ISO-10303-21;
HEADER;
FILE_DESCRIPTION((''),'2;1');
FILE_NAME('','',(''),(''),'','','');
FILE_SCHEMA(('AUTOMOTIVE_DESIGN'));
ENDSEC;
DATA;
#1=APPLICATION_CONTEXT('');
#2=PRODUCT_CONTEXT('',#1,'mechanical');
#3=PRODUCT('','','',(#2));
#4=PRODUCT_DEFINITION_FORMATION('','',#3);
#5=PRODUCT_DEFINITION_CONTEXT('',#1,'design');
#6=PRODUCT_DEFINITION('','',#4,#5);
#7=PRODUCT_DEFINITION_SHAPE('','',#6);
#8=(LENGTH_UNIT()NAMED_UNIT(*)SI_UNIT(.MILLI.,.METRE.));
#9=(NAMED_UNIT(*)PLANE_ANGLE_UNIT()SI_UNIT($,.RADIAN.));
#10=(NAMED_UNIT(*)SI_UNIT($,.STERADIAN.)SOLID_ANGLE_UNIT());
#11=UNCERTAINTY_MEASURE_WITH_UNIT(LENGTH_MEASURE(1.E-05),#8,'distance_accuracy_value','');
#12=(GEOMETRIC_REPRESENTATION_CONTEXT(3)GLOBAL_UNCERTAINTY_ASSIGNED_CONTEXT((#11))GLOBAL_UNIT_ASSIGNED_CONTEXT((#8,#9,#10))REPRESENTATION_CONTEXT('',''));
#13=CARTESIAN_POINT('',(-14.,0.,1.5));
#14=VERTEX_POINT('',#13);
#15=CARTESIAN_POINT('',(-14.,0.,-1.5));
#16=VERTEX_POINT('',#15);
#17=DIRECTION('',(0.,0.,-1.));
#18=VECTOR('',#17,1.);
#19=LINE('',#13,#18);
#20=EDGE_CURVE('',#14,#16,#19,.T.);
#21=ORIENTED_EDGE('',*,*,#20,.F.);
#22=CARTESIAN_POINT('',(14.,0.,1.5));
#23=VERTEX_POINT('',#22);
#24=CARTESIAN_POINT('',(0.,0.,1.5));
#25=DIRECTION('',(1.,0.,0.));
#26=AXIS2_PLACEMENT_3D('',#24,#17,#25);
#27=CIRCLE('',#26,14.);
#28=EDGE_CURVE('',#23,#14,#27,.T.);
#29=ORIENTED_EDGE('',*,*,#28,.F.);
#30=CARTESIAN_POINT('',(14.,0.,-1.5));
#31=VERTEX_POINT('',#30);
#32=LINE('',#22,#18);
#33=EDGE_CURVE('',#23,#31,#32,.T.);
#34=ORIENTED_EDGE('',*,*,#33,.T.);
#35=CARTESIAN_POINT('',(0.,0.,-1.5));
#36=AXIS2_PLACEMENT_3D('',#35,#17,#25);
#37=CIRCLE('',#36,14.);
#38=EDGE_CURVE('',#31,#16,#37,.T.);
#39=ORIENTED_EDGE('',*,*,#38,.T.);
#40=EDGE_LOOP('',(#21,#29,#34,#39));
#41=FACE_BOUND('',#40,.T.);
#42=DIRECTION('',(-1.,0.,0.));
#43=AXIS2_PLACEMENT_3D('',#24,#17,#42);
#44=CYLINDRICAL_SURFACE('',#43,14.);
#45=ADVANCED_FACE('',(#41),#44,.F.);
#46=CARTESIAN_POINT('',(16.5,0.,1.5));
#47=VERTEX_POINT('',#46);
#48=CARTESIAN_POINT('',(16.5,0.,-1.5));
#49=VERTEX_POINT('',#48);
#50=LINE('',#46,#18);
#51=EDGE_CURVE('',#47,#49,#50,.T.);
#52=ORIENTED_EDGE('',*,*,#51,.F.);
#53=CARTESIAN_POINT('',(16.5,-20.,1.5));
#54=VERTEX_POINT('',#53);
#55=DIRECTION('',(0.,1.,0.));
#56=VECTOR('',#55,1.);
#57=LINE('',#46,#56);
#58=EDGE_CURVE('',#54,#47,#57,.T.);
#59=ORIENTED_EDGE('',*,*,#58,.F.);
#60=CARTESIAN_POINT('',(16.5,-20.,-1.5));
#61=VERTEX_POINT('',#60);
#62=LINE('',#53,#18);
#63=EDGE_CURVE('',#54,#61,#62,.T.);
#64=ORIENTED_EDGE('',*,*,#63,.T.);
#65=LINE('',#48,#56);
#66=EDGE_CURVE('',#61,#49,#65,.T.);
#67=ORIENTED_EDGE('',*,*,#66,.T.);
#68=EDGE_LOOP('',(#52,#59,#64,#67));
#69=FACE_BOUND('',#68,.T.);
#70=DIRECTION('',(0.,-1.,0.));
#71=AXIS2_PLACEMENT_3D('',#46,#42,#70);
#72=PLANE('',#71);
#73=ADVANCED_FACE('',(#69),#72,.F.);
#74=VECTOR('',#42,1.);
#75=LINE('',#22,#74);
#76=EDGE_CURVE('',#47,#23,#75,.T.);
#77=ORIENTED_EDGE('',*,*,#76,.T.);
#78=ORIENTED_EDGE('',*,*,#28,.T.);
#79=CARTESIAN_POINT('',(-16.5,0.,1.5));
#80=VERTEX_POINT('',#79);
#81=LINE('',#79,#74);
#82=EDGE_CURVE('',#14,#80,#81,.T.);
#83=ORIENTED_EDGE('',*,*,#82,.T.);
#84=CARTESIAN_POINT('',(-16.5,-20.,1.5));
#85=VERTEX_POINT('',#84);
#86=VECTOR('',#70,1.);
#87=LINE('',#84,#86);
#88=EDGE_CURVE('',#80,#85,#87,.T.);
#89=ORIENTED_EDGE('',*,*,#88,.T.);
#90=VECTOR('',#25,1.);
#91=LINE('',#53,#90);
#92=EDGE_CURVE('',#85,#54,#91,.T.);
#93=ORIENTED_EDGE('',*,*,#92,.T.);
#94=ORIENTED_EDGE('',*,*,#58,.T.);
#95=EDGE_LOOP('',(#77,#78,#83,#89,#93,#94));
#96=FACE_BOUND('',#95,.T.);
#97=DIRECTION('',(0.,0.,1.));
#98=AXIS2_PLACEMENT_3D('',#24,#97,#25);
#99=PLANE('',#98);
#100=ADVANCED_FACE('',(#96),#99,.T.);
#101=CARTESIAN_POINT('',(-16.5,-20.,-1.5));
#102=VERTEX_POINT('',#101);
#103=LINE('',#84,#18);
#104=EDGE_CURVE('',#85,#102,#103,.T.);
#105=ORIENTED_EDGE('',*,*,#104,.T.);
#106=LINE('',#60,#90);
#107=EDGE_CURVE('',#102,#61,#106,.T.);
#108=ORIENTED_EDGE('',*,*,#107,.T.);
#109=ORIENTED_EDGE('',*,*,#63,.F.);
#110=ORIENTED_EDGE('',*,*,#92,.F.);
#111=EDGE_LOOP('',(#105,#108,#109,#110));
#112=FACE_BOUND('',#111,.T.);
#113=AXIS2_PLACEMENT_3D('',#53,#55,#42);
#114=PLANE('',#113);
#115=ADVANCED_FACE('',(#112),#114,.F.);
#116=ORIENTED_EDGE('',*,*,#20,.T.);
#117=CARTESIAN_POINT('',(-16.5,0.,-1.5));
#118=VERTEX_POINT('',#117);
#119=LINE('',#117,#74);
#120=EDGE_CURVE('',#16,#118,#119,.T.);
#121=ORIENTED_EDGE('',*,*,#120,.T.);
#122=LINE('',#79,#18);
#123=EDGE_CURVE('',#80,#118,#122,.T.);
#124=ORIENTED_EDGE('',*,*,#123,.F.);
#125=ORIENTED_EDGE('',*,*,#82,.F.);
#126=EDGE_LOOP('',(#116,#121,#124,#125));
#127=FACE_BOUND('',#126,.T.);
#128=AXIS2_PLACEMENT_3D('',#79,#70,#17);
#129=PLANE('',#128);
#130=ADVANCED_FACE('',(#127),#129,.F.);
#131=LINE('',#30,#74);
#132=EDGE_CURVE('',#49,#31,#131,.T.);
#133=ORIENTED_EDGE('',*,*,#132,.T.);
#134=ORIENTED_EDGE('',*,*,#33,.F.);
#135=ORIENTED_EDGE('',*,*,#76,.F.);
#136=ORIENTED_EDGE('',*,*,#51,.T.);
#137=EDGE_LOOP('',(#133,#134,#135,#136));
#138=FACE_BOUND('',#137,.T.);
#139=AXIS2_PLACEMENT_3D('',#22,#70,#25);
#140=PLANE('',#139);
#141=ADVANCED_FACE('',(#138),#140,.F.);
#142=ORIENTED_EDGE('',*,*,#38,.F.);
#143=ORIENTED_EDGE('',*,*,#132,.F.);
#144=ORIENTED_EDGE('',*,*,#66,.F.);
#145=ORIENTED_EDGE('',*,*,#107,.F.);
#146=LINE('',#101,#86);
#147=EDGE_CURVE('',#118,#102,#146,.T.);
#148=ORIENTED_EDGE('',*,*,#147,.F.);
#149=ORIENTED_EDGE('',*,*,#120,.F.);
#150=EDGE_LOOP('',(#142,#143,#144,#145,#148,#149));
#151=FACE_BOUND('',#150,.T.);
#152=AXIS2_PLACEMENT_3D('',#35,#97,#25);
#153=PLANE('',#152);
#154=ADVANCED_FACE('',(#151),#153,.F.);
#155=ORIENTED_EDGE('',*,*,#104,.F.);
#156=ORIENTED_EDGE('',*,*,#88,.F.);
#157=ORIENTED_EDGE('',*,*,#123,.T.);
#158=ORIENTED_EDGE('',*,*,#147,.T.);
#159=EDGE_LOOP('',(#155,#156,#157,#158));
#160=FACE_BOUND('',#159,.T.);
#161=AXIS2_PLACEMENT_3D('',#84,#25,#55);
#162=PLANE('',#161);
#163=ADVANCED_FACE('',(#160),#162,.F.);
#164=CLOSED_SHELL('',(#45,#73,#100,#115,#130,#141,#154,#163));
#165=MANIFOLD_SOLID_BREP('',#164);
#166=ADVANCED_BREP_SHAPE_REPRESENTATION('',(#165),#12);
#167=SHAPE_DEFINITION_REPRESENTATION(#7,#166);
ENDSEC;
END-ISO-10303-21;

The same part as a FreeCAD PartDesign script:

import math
import FreeCAD as App
import Part
import Sketcher
Q = App.Units.Quantity

doc = App.newDocument("Part")
body = doc.addObject("PartDesign::Body", "Body")

# Sketch on XY plane
sketch1 = body.newObject("Sketcher::SketchObject", "Sketch")
sketch1.AttachmentSupport = (doc.getObject("XY_Plane"), [""])
sketch1.MapMode = "FlatFace"
sketch1.addGeometry([
    Part.LineSegment(App.Vector(-14, 0, 0), App.Vector(-16.5, 0, 0)),  # 0
    Part.LineSegment(App.Vector(-16.5, 0, 0), App.Vector(-16.5, -20, 0)),  # 1
    Part.LineSegment(App.Vector(-16.5, -20, 0), App.Vector(16.5, -20, 0)),  # 2
    Part.LineSegment(App.Vector(16.5, -20, 0), App.Vector(16.5, 0, 0)),  # 3
    Part.LineSegment(App.Vector(16.5, 0, 0), App.Vector(14, 0, 0)),  # 4
    Part.ArcOfCircle(Part.Circle(App.Vector(0, 0, 0), App.Vector(0, 0, 1), 14), math.radians(180), math.radians(360)),  # 5
], False)
sketch1.addConstraint([
    Sketcher.Constraint("Coincident", 0, 2, 1, 1),
    Sketcher.Constraint("Coincident", 1, 2, 2, 1),
    Sketcher.Constraint("Coincident", 2, 2, 3, 1),
    Sketcher.Constraint("Coincident", 3, 2, 4, 1),
    Sketcher.Constraint("Coincident", 4, 2, 5, 2),
    Sketcher.Constraint("Coincident", 5, 1, 0, 1),
    Sketcher.Constraint("Horizontal", 0),
    Sketcher.Constraint("Vertical", 1),
    Sketcher.Constraint("Horizontal", 2),
    Sketcher.Constraint("Vertical", 3),
    Sketcher.Constraint("Horizontal", 4),
    Sketcher.Constraint("Coincident", 5, 3, -1, 1),
    Sketcher.Constraint("Symmetric", 0, 2, 3, 2, -1, 1),
    Sketcher.Constraint("PointOnObject", 0, 2, -1),
    Sketcher.Constraint("Radius", 5, Q("14 mm")),
    Sketcher.Constraint("DistanceX", 2, 1, 2, 2, Q("33 mm")),
    Sketcher.Constraint("DistanceY", 1, 2, 1, 1, Q("20 mm")),
])
pad1 = body.newObject("PartDesign::Pad", "Pad")
pad1.Profile = sketch1
pad1.Length = 3
pad1.Midplane = True

doc.recompute()
